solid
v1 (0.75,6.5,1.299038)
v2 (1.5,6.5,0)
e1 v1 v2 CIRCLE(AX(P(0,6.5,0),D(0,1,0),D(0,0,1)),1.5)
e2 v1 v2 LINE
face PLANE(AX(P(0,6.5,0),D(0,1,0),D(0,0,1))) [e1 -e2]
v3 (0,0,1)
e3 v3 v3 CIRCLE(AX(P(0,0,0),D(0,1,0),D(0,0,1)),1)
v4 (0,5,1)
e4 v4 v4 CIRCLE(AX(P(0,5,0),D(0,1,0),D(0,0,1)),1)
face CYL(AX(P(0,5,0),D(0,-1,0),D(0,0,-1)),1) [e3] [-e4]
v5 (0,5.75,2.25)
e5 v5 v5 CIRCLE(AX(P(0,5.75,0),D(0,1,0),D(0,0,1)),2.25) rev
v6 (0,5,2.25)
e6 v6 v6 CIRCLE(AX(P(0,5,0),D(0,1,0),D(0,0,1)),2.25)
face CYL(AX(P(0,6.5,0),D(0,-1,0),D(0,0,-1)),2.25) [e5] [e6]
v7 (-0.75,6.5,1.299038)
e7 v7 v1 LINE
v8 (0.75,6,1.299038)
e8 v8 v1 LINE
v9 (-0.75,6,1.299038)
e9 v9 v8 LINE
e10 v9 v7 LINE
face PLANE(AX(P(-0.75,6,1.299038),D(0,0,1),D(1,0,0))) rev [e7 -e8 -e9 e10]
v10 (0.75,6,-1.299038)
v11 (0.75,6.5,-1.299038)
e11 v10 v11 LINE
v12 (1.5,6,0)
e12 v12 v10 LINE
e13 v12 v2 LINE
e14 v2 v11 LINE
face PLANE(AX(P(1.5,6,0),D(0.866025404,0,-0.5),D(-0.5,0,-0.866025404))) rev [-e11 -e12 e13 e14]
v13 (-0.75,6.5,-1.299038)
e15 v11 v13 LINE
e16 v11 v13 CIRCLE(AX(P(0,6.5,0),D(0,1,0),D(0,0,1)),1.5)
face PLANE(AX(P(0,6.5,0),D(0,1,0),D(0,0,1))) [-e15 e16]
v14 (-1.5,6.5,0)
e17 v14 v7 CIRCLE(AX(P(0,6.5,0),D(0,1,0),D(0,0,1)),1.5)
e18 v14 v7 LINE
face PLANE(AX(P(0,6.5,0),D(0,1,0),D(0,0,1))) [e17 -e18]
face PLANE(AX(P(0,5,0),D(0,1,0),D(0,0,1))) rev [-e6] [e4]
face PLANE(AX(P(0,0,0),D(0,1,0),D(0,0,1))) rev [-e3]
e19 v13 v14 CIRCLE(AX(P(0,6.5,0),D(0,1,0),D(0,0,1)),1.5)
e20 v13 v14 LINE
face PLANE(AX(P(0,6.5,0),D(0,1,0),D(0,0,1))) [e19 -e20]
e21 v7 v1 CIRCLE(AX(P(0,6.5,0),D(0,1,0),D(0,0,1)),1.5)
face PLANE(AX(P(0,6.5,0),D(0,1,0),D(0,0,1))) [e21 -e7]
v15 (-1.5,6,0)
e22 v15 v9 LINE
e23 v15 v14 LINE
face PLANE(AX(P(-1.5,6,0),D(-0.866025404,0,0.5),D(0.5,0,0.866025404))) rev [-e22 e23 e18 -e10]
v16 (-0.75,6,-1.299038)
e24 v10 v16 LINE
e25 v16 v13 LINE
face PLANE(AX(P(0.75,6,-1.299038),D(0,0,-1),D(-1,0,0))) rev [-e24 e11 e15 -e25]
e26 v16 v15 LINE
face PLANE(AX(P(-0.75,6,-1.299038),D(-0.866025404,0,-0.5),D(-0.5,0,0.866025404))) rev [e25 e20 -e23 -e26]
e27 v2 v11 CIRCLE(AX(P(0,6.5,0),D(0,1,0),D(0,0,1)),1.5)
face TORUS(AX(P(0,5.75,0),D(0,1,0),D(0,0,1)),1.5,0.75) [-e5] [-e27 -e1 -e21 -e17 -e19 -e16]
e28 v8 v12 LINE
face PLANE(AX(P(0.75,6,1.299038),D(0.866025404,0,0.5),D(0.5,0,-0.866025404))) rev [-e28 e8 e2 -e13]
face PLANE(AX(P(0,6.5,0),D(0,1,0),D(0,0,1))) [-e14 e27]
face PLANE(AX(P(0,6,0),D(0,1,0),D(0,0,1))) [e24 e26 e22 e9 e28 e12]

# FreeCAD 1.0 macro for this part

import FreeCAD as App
import Part
import Sketcher
from FreeCAD import Vector
Q = App.Units.Quantity


def edges_at(feature, points):
    """Names of the edges that pass closest to the given points."""
    edges = feature.Shape.Edges
    near = lambda p: min(range(len(edges)), key=lambda i: edges[i].distToShape(Part.Vertex(*p))[0])
    return sorted({f"Edge{near(p) + 1}" for p in points})

doc = App.newDocument("Part")
body = doc.addObject("PartDesign::Body", "Body")

# Sketch on XZ plane
sketch1 = doc.addObject("Sketcher::SketchObject", "Sketch")
body.addObject(sketch1)
sketch1.AttachmentSupport = (doc.XZ_Plane, [""])
sketch1.MapMode = "FlatFace"
sketch1.addGeometry(Part.Circle(Vector(0, 0, 0), Vector(0, 0, 1), 1), False)
sketch1.addConstraint(Sketcher.Constraint("Coincident", 0, 3, -1, 1))
sketch1.addConstraint(Sketcher.Constraint("Diameter", 0, 2.0))
pad1 = doc.addObject("PartDesign::Pad", "Pad")
body.addObject(pad1)
pad1.Profile = sketch1
pad1.Length = 5
pad1.Reversed = True

# Sketch on XZ plane
sketch2 = doc.addObject("Sketcher::SketchObject", "Sketch001")
body.addObject(sketch2)
sketch2.AttachmentSupport = (doc.XZ_Plane, [""])
sketch2.MapMode = "FlatFace"
sketch2.AttachmentOffset = App.Placement(Vector(0, 0, -5), App.Rotation())
sketch2.addGeometry(Part.Circle(Vector(0, 0, 0), Vector(0, 0, 1), 2.2), False)
sketch2.addConstraint(Sketcher.Constraint("Coincident", 0, 3, -1, 1))
sketch2.addConstraint(Sketcher.Constraint("Diameter", 0, 4.5))
pad2 = doc.addObject("PartDesign::Pad", "Pad001")
body.addObject(pad2)
pad2.Profile = sketch2
pad2.Length = 1.5
pad2.Reversed = True
doc.recompute()

fillet = doc.addObject("PartDesign::Fillet", "Fillet")
body.addObject(fillet)
fillet.Base = (pad2, edges_at(pad2, [(0, 6.5, -2.25)]))
fillet.Radius = 0.75

# Sketch on XZ plane
sketch3 = doc.addObject("Sketcher::SketchObject", "Sketch002")
body.addObject(sketch3)
sketch3.AttachmentSupport = (doc.XZ_Plane, [""])
sketch3.MapMode = "FlatFace"
sketch3.AttachmentOffset = App.Placement(Vector(0, 0, -6.5), App.Rotation())
sketch3.addGeometry(Part.LineSegment(Vector(1.5, 0, 0), Vector(0.8, -1.3, 0)), False)
sketch3.addGeometry(Part.LineSegment(Vector(0.8, -1.3, 0), Vector(-0.8, -1.3, 0)), False)
sketch3.addGeometry(Part.LineSegment(Vector(-0.8, -1.3, 0), Vector(-1.5, 0, 0)), False)
sketch3.addGeometry(Part.LineSegment(Vector(-1.5, 0, 0), Vector(-0.8, 1.3, 0)), False)
sketch3.addGeometry(Part.LineSegment(Vector(-0.8, 1.3, 0), Vector(0.8, 1.3, 0)), False)
sketch3.addGeometry(Part.LineSegment(Vector(0.8, 1.3, 0), Vector(1.5, 0, 0)), False)
sketch3.addConstraint(Sketcher.Constraint("Coincident", 0, 2, 1, 1))
sketch3.addConstraint(Sketcher.Constraint("Coincident", 1, 2, 2, 1))
sketch3.addConstraint(Sketcher.Constraint("Coincident", 2, 2, 3, 1))
sketch3.addConstraint(Sketcher.Constraint("Coincident", 3, 2, 4, 1))
sketch3.addConstraint(Sketcher.Constraint("Coincident", 4, 2, 5, 1))
sketch3.addConstraint(Sketcher.Constraint("Coincident", 5, 2, 0, 1))
sketch3.addConstraint(Sketcher.Constraint("Horizontal", 1))
sketch3.addConstraint(Sketcher.Constraint("Horizontal", 4))
sketch3.addConstraint(Sketcher.Constraint("Symmetric", 0, 2, 3, 2, -1, 1))
sketch3.addConstraint(Sketcher.Constraint("Symmetric", 2, 2, 5, 2, -1, 1))
sketch3.addConstraint(Sketcher.Constraint("PointOnObject", 2, 2, -1))
sketch3.addConstraint(Sketcher.Constraint("Parallel", 2, 5))
sketch3.addConstraint(Sketcher.Constraint("Vertical", 1, 2, 3, 2))
sketch3.addConstraint(Sketcher.Constraint("Angle", 0, Q("-120 deg")))
sketch3.addConstraint(Sketcher.Constraint("DistanceX", 1, 2, 1, 1, 1.5))
sketch3.addConstraint(Sketcher.Constraint("DistanceX", 2, 2, 5, 2, 3.0))
pocket1 = doc.addObject("PartDesign::Pocket", "Pocket")
body.addObject(pocket1)
pocket1.Profile = sketch3
pocket1.Length = 0.5
pocket1.Reversed = True

doc.recompute()
